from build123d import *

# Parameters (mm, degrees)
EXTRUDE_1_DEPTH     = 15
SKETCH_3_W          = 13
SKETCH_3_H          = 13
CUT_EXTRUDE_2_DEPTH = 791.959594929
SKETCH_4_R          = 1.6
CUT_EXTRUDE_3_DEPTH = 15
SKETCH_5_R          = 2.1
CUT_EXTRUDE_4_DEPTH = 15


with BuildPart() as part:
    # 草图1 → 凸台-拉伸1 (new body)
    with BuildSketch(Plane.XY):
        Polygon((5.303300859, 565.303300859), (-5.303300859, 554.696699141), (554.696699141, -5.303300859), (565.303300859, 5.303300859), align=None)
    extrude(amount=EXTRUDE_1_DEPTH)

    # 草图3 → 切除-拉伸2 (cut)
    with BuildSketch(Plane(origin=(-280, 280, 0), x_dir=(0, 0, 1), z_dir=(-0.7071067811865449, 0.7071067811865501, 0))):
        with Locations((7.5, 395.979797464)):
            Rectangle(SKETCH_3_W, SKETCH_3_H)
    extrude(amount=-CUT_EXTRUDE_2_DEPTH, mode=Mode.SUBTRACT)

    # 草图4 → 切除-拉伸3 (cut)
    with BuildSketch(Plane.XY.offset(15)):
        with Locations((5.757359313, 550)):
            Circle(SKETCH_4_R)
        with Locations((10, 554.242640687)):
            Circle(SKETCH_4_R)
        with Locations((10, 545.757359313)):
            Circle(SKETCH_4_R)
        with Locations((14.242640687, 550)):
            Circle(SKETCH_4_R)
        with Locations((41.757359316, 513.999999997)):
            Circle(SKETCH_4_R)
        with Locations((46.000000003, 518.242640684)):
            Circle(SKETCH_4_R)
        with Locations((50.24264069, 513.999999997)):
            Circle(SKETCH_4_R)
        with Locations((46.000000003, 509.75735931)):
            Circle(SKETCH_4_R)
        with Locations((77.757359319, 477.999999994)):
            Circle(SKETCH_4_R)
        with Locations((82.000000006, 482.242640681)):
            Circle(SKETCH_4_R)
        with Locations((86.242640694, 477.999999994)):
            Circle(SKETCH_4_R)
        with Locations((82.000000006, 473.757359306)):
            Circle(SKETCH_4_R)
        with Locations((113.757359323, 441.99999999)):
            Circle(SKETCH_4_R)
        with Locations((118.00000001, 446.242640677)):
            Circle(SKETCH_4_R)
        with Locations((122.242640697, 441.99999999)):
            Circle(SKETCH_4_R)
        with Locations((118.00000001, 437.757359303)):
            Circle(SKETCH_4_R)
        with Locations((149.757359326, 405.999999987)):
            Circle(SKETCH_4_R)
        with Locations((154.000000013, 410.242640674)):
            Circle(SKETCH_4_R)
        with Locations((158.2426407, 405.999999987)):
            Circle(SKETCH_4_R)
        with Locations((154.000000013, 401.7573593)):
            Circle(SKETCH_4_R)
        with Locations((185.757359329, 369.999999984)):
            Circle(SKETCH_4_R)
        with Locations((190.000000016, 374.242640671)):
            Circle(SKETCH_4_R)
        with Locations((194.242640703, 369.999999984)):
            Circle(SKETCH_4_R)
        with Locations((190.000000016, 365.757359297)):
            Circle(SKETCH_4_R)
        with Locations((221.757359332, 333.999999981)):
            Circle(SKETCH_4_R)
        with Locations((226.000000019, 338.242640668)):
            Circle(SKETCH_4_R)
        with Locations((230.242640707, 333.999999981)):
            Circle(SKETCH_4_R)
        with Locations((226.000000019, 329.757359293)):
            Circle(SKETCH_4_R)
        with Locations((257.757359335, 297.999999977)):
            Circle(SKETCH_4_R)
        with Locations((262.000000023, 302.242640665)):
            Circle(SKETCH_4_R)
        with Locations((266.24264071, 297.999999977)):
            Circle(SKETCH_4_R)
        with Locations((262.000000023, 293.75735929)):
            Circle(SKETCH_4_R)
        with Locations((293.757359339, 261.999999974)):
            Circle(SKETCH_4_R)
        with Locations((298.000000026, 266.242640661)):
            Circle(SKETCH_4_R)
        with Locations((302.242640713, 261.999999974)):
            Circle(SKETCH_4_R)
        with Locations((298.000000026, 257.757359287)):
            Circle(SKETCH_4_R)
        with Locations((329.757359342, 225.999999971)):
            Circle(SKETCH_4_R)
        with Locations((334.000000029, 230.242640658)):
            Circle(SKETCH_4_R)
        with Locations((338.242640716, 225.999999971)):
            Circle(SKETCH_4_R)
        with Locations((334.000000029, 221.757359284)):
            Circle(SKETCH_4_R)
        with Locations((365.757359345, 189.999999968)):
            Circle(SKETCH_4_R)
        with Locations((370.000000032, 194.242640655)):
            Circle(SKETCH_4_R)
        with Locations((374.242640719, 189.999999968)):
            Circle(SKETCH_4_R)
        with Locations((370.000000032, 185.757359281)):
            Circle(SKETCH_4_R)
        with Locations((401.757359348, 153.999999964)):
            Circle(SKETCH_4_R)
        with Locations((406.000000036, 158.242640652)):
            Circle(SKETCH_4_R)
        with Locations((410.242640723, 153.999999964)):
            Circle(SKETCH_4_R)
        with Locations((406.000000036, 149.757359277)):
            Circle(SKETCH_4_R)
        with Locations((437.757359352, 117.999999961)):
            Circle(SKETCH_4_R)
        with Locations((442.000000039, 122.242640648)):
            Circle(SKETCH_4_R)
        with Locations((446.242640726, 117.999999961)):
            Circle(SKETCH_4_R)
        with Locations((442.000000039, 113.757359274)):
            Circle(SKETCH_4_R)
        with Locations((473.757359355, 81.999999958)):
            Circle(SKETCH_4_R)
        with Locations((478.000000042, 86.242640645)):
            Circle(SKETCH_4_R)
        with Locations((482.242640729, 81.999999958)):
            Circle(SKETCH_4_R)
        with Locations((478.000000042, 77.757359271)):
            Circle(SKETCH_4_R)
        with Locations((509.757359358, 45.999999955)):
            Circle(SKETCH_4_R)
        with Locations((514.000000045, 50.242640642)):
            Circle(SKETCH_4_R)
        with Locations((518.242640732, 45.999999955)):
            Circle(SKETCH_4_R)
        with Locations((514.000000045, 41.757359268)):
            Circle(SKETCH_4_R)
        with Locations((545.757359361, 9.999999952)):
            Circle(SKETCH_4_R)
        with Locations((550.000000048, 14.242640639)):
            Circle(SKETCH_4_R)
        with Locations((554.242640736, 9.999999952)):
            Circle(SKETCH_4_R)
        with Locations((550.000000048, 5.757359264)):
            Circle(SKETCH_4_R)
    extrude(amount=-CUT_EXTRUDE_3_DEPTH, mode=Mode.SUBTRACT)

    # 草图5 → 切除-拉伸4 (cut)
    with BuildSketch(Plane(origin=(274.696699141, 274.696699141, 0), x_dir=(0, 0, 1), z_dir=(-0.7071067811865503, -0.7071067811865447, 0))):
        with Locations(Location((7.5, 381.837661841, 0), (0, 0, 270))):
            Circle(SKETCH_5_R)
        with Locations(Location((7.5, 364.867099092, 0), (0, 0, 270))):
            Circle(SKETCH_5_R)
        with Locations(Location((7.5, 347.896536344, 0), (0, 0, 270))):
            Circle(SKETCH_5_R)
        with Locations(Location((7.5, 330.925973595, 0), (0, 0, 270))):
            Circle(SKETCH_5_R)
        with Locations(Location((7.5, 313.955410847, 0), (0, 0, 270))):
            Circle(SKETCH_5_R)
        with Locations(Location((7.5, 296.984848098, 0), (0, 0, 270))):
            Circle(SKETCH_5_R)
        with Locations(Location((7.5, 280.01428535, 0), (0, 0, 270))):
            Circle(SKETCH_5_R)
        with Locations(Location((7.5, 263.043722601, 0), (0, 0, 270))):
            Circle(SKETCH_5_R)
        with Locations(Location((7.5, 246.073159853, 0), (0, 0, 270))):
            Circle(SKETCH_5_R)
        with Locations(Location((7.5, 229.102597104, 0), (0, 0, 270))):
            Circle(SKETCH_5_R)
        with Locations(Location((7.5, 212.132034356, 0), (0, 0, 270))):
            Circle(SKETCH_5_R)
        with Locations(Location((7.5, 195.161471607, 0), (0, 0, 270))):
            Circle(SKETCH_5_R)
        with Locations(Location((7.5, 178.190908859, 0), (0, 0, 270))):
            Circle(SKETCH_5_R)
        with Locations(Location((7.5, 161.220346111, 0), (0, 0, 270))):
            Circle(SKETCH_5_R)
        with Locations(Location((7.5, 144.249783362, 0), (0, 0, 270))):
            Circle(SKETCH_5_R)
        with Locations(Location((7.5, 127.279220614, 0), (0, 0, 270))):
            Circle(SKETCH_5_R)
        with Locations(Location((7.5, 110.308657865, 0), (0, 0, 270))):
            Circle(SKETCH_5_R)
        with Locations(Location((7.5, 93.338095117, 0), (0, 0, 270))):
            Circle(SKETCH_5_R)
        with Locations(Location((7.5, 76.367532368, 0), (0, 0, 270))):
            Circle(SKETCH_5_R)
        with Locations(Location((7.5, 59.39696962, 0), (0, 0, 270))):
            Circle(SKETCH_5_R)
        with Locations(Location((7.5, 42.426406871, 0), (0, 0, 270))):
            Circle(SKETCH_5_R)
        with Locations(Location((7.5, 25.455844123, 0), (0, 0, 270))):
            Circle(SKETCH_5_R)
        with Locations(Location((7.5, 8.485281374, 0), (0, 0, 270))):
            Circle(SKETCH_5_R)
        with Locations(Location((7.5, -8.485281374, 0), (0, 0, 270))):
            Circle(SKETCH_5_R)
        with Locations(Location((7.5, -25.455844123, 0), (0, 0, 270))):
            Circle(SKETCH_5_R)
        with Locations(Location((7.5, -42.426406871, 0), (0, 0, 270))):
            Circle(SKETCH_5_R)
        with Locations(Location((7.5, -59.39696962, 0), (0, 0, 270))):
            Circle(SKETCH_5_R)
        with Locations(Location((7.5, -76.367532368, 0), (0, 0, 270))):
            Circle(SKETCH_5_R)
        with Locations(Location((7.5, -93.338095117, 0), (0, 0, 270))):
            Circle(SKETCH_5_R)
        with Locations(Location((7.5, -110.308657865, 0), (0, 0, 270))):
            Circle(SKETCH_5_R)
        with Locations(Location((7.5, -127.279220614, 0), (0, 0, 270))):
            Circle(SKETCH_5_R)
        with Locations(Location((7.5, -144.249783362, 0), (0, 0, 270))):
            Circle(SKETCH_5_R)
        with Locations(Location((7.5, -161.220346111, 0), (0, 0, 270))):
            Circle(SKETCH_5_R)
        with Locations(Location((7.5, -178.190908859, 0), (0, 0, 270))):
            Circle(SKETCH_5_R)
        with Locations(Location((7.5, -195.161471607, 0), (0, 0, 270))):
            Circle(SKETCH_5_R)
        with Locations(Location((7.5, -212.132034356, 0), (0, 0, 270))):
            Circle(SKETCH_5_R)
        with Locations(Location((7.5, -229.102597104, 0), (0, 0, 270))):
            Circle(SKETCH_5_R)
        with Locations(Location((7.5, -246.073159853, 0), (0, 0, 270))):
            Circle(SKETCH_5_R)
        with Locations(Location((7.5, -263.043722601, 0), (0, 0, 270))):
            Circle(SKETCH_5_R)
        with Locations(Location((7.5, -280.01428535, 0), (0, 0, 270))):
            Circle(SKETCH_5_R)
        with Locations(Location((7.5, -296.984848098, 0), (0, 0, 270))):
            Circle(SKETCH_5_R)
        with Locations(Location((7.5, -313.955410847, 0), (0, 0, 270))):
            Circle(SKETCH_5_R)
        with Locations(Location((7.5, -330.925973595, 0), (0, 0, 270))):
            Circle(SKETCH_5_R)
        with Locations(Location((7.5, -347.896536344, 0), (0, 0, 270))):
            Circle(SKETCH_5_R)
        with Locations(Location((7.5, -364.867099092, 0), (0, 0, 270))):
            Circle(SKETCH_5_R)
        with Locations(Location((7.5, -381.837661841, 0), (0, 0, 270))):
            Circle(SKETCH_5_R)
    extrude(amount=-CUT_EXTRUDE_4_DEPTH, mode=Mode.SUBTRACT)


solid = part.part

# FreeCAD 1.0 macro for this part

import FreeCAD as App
import Part
import Sketcher
Q = App.Units.Quantity

doc = App.newDocument("Part")
params = doc.addObject("Spreadsheet::Sheet", "Params")
for row, (alias, value) in enumerate([
    ("sketch1_length", "15 mm"),
    ("pad1_length", "15 mm"),
    ("sketch2_width", "13 mm"),
    ("pocket1_length", "791.959595 mm"),
    ("sketch3_diameter", "3.2 mm"),
    ("pocket2_length", "15 mm"),
    ("sketch4_diameter", "4.2 mm"),
    ("pocket3_length", "15 mm"),
], start=1):
    params.set(f"A{row}", alias)
    params.set(f"B{row}", "=" + value)
    params.setAlias(f"B{row}", alias)

body = doc.addObject("PartDesign::Body", "Body")

sketch1 = body.newObject("Sketcher::SketchObject", "Sketch")
sketch1.AttachmentSupport = (doc.getObject("XY_Plane"), [""])
sketch1.MapMode = "FlatFace"
sketch1.addGeometry(Part.LineSegment(App.Vector(5, 565, 0), App.Vector(-5, 555, 0)), False)
sketch1.addGeometry(Part.LineSegment(App.Vector(-5, 555, 0), App.Vector(555, -5, 0)), False)
sketch1.addGeometry(Part.LineSegment(App.Vector(555, -5, 0), App.Vector(565, 5, 0)), False)
sketch1.addGeometry(Part.LineSegment(App.Vector(565, 5, 0), App.Vector(5, 565, 0)), False)
sketch1.addConstraint(Sketcher.Constraint("Coincident", 0, 2, 1, 1))
sketch1.addConstraint(Sketcher.Constraint("Coincident", 1, 2, 2, 1))
sketch1.addConstraint(Sketcher.Constraint("Coincident", 2, 2, 3, 1))
sketch1.addConstraint(Sketcher.Constraint("Coincident", 3, 2, 0, 1))
sketch1.addConstraint(Sketcher.Constraint("Perpendicular", 0, 1))
sketch1.addConstraint(Sketcher.Constraint("Perpendicular", 1, 2))
sketch1.addConstraint(Sketcher.Constraint("Perpendicular", 2, 3))
sketch1.addConstraint(Sketcher.Constraint("Angle", 0, Q("-135 deg")))
sketch1.addConstraint(Sketcher.Constraint("Distance", 0, Q("15 mm")))
sketch1.addConstraint(Sketcher.Constraint("DistanceX", 0, 2, 1, 2, Q("560 mm")))
sketch1.addConstraint(Sketcher.Constraint("DistanceX", 0, 2, -1, 1, Q("5.303301 mm")))
sketch1.addConstraint(Sketcher.Constraint("DistanceY", -1, 1, 0, 2, Q("554.696699 mm")))
sketch1.setExpression("Constraints[8]", "Params.sketch1_length")
pad1 = body.newObject("PartDesign::Pad", "Pad")
pad1.Profile = sketch1
pad1.setExpression("Length", "Params.pad1_length")

sketch2 = body.newObject("Sketcher::SketchObject", "Sketch001")
sketch2.Placement = App.Placement(App.Vector(-280, 280, 0), App.Rotation(App.Vector(0, 0, 1), App.Vector(0.707106781, 0.707106781, 0), App.Vector(-0.707106781, 0.707106781, 0), "ZXY"))
sketch2.addGeometry(Part.LineSegment(App.Vector(1, 402, 0), App.Vector(1, 389, 0)), False)
sketch2.addGeometry(Part.LineSegment(App.Vector(1, 389, 0), App.Vector(14, 389, 0)), False)
sketch2.addGeometry(Part.LineSegment(App.Vector(14, 389, 0), App.Vector(14, 402, 0)), False)
sketch2.addGeometry(Part.LineSegment(App.Vector(14, 402, 0), App.Vector(1, 402, 0)), False)
sketch2.addConstraint(Sketcher.Constraint("Coincident", 0, 2, 1, 1))
sketch2.addConstraint(Sketcher.Constraint("Coincident", 1, 2, 2, 1))
sketch2.addConstraint(Sketcher.Constraint("Coincident", 2, 2, 3, 1))
sketch2.addConstraint(Sketcher.Constraint("Coincident", 3, 2, 0, 1))
sketch2.addConstraint(Sketcher.Constraint("Vertical", 0))
sketch2.addConstraint(Sketcher.Constraint("Horizontal", 1))
sketch2.addConstraint(Sketcher.Constraint("Vertical", 2))
sketch2.addConstraint(Sketcher.Constraint("Horizontal", 3))
sketch2.addConstraint(Sketcher.Constraint("Equal", 3, 0))
sketch2.addConstraint(Sketcher.Constraint("DistanceX", 1, 1, 1, 2, Q("13 mm")))
sketch2.addConstraint(Sketcher.Constraint("DistanceX", -1, 1, 0, 2, Q("1 mm")))
sketch2.addConstraint(Sketcher.Constraint("DistanceY", -1, 1, 0, 2, Q("389.479797 mm")))
sketch2.setExpression("Constraints[9]", "Params.sketch2_width")
pocket1 = body.newObject("PartDesign::Pocket", "Pocket")
pocket1.Profile = sketch2
pocket1.setExpression("Length", "Params.pocket1_length")

sketch3 = body.newObject("Sketcher::SketchObject", "Sketch002")
sketch3.AttachmentSupport = (doc.getObject("XY_Plane"), [""])
sketch3.MapMode = "FlatFace"
sketch3.AttachmentOffset = App.Placement(App.Vector(0, 0, 15), App.Rotation())
sketch3.addGeometry(Part.Circle(App.Vector(5.8, 550, 0), App.Vector(0, 0, 1), 1.6), False)
sketch3.addGeometry(Part.Circle(App.Vector(10, 554.2, 0), App.Vector(0, 0, 1), 1.6), False)
sketch3.addGeometry(Part.Circle(App.Vector(10, 545.8, 0), App.Vector(0, 0, 1), 1.6), False)
sketch3.addGeometry(Part.Circle(App.Vector(14.2, 550, 0), App.Vector(0, 0, 1), 1.6), False)
sketch3.addGeometry(Part.Circle(App.Vector(41.8, 514, 0), App.Vector(0, 0, 1), 1.6), False)
sketch3.addGeometry(Part.Circle(App.Vector(46, 518.2, 0), App.Vector(0, 0, 1), 1.6), False)
sketch3.addGeometry(Part.Circle(App.Vector(50.2, 514, 0), App.Vector(0, 0, 1), 1.6), False)
sketch3.addGeometry(Part.Circle(App.Vector(46, 509.8, 0), App.Vector(0, 0, 1), 1.6), False)
sketch3.addGeometry(Part.Circle(App.Vector(77.8, 478, 0), App.Vector(0, 0, 1), 1.6), False)
sketch3.addGeometry(Part.Circle(App.Vector(82, 482.2, 0), App.Vector(0, 0, 1), 1.6), False)
sketch3.addGeometry(Part.Circle(App.Vector(86.2, 478, 0), App.Vector(0, 0, 1), 1.6), False)
sketch3.addGeometry(Part.Circle(App.Vector(82, 473.8, 0), App.Vector(0, 0, 1), 1.6), False)
sketch3.addGeometry(Part.Circle(App.Vector(113.8, 442, 0), App.Vector(0, 0, 1), 1.6), False)
sketch3.addGeometry(Part.Circle(App.Vector(118, 446.2, 0), App.Vector(0, 0, 1), 1.6), False)
sketch3.addGeometry(Part.Circle(App.Vector(122.2, 442, 0), App.Vector(0, 0, 1), 1.6), False)
sketch3.addGeometry(Part.Circle(App.Vector(118, 437.8, 0), App.Vector(0, 0, 1), 1.6), False)
sketch3.addGeometry(Part.Circle(App.Vector(149.8, 406, 0), App.Vector(0, 0, 1), 1.6), False)
sketch3.addGeometry(Part.Circle(App.Vector(154, 410.2, 0), App.Vector(0, 0, 1), 1.6), False)
sketch3.addGeometry(Part.Circle(App.Vector(158.2, 406, 0), App.Vector(0, 0, 1), 1.6), False)
sketch3.addGeometry(Part.Circle(App.Vector(154, 401.8, 0), App.Vector(0, 0, 1), 1.6), False)
sketch3.addGeometry(Part.Circle(App.Vector(185.8, 370, 0), App.Vector(0, 0, 1), 1.6), False)
sketch3.addGeometry(Part.Circle(App.Vector(190, 374.2, 0), App.Vector(0, 0, 1), 1.6), False)
sketch3.addGeometry(Part.Circle(App.Vector(194.2, 370, 0), App.Vector(0, 0, 1), 1.6), False)
sketch3.addGeometry(Part.Circle(App.Vector(190, 365.8, 0), App.Vector(0, 0, 1), 1.6), False)
sketch3.addGeometry(Part.Circle(App.Vector(221.8, 334, 0), App.Vector(0, 0, 1), 1.6), False)
sketch3.addGeometry(Part.Circle(App.Vector(226, 338.2, 0), App.Vector(0, 0, 1), 1.6), False)
sketch3.addGeometry(Part.Circle(App.Vector(230.2, 334, 0), App.Vector(0, 0, 1), 1.6), False)
sketch3.addGeometry(Part.Circle(App.Vector(226, 329.8, 0), App.Vector(0, 0, 1), 1.6), False)
sketch3.addGeometry(Part.Circle(App.Vector(257.8, 298, 0), App.Vector(0, 0, 1), 1.6), False)
sketch3.addGeometry(Part.Circle(App.Vector(262, 302.2, 0), App.Vector(0, 0, 1), 1.6), False)
sketch3.addGeometry(Part.Circle(App.Vector(266.2, 298, 0), App.Vector(0, 0, 1), 1.6), False)
sketch3.addGeometry(Part.Circle(App.Vector(262, 293.8, 0), App.Vector(0, 0, 1), 1.6), False)
sketch3.addGeometry(Part.Circle(App.Vector(293.8, 262, 0), App.Vector(0, 0, 1), 1.6), False)
sketch3.addGeometry(Part.Circle(App.Vector(298, 266.2, 0), App.Vector(0, 0, 1), 1.6), False)
sketch3.addGeometry(Part.Circle(App.Vector(302.2, 262, 0), App.Vector(0, 0, 1), 1.6), False)
sketch3.addGeometry(Part.Circle(App.Vector(298, 257.8, 0), App.Vector(0, 0, 1), 1.6), False)
sketch3.addGeometry(Part.Circle(App.Vector(329.8, 226, 0), App.Vector(0, 0, 1), 1.6), False)
sketch3.addGeometry(Part.Circle(App.Vector(334, 230.2, 0), App.Vector(0, 0, 1), 1.6), False)
sketch3.addGeometry(Part.Circle(App.Vector(338.2, 226, 0), App.Vector(0, 0, 1), 1.6), False)
sketch3.addGeometry(Part.Circle(App.Vector(334, 221.8, 0), App.Vector(0, 0, 1), 1.6), False)
sketch3.addGeometry(Part.Circle(App.Vector(365.8, 190, 0), App.Vector(0, 0, 1), 1.6), False)
sketch3.addGeometry(Part.Circle(App.Vector(370, 194.2, 0), App.Vector(0, 0, 1), 1.6), False)
sketch3.addGeometry(Part.Circle(App.Vector(374.2, 190, 0), App.Vector(0, 0, 1), 1.6), False)
sketch3.addGeometry(Part.Circle(App.Vector(370, 185.8, 0), App.Vector(0, 0, 1), 1.6), False)
sketch3.addGeometry(Part.Circle(App.Vector(401.8, 154, 0), App.Vector(0, 0, 1), 1.6), False)
sketch3.addGeometry(Part.Circle(App.Vector(406, 158.2, 0), App.Vector(0, 0, 1), 1.6), False)
sketch3.addGeometry(Part.Circle(App.Vector(410.2, 154, 0), App.Vector(0, 0, 1), 1.6), False)
sketch3.addGeometry(Part.Circle(App.Vector(406, 149.8, 0), App.Vector(0, 0, 1), 1.6), False)
sketch3.addGeometry(Part.Circle(App.Vector(437.8, 118, 0), App.Vector(0, 0, 1), 1.6), False)
sketch3.addGeometry(Part.Circle(App.Vector(442, 122.2, 0), App.Vector(0, 0, 1), 1.6), False)
sketch3.addGeometry(Part.Circle(App.Vector(446.2, 118, 0), App.Vector(0, 0, 1), 1.6), False)
sketch3.addGeometry(Part.Circle(App.Vector(442, 113.8, 0), App.Vector(0, 0, 1), 1.6), False)
sketch3.addGeometry(Part.Circle(App.Vector(473.8, 82, 0), App.Vector(0, 0, 1), 1.6), False)
sketch3.addGeometry(Part.Circle(App.Vector(478, 86.2, 0), App.Vector(0, 0, 1), 1.6), False)
sketch3.addGeometry(Part.Circle(App.Vector(482.2, 82, 0), App.Vector(0, 0, 1), 1.6), False)
sketch3.addGeometry(Part.Circle(App.Vector(478, 77.8, 0), App.Vector(0, 0, 1), 1.6), False)
sketch3.addGeometry(Part.Circle(App.Vector(509.8, 46, 0), App.Vector(0, 0, 1), 1.6), False)
sketch3.addGeometry(Part.Circle(App.Vector(514, 50.2, 0), App.Vector(0, 0, 1), 1.6), False)
sketch3.addGeometry(Part.Circle(App.Vector(518.2, 46, 0), App.Vector(0, 0, 1), 1.6), False)
sketch3.addGeometry(Part.Circle(App.Vector(514, 41.8, 0), App.Vector(0, 0, 1), 1.6), False)
sketch3.addGeometry(Part.Circle(App.Vector(545.8, 10, 0), App.Vector(0, 0, 1), 1.6), False)
sketch3.addGeometry(Part.Circle(App.Vector(550, 14.2, 0), App.Vector(0, 0, 1), 1.6), False)
sketch3.addGeometry(Part.Circle(App.Vector(554.2, 10, 0), App.Vector(0, 0, 1), 1.6), False)
sketch3.addGeometry(Part.Circle(App.Vector(550, 5.8, 0), App.Vector(0, 0, 1), 1.6), False)
sketch3.addConstraint(Sketcher.Constraint("Equal", 0, 1))
sketch3.addConstraint(Sketcher.Constraint("Equal", 1, 2))
sketch3.addConstraint(Sketcher.Constraint("Equal", 2, 3))
sketch3.addConstraint(Sketcher.Constraint("Equal", 3, 4))
sketch3.addConstraint(Sketcher.Constraint("Equal", 4, 5))
sketch3.addConstraint(Sketcher.Constraint("Equal", 5, 6))
sketch3.addConstraint(Sketcher.Constraint("Equal", 6, 7))
sketch3.addConstraint(Sketcher.Constraint("Equal", 7, 8))
sketch3.addConstraint(Sketcher.Constraint("Equal", 8, 9))
sketch3.addConstraint(Sketcher.Constraint("Equal", 9, 10))
sketch3.addConstraint(Sketcher.Constraint("Equal", 10, 11))
sketch3.addConstraint(Sketcher.Constraint("Equal", 11, 12))
sketch3.addConstraint(Sketcher.Constraint("Equal", 12, 13))
sketch3.addConstraint(Sketcher.Constraint("Equal", 13, 14))
sketch3.addConstraint(Sketcher.Constraint("Equal", 14, 15))
sketch3.addConstraint(Sketcher.Constraint("Equal", 15, 16))
sketch3.addConstraint(Sketcher.Constraint("Equal", 16, 17))
sketch3.addConstraint(Sketcher.Constraint("Equal", 17, 18))
sketch3.addConstraint(Sketcher.Constraint("Equal", 18, 19))
sketch3.addConstraint(Sketcher.Constraint("Equal", 19, 20))
sketch3.addConstraint(Sketcher.Constraint("Equal", 20, 21))
sketch3.addConstraint(Sketcher.Constraint("Equal", 21, 22))
sketch3.addConstraint(Sketcher.Constraint("Equal", 22, 23))
sketch3.addConstraint(Sketcher.Constraint("Equal", 23, 24))
sketch3.addConstraint(Sketcher.Constraint("Equal", 24, 25))
sketch3.addConstraint(Sketcher.Constraint("Equal", 25, 26))
sketch3.addConstraint(Sketcher.Constraint("Equal", 26, 27))
sketch3.addConstraint(Sketcher.Constraint("Equal", 27, 28))
sketch3.addConstraint(Sketcher.Constraint("Equal", 28, 29))
sketch3.addConstraint(Sketcher.Constraint("Equal", 29, 30))
sketch3.addConstraint(Sketcher.Constraint("Equal", 30, 31))
sketch3.addConstraint(Sketcher.Constraint("Equal", 31, 32))
sketch3.addConstraint(Sketcher.Constraint("Equal", 32, 33))
sketch3.addConstraint(Sketcher.Constraint("Equal", 33, 34))
sketch3.addConstraint(Sketcher.Constraint("Equal", 34, 35))
sketch3.addConstraint(Sketcher.Constraint("Equal", 35, 36))
sketch3.addConstraint(Sketcher.Constraint("Equal", 36, 37))
sketch3.addConstraint(Sketcher.Constraint("Equal", 37, 38))
sketch3.addConstraint(Sketcher.Constraint("Equal", 38, 39))
sketch3.addConstraint(Sketcher.Constraint("Equal", 39, 40))
sketch3.addConstraint(Sketcher.Constraint("Equal", 40, 41))
sketch3.addConstraint(Sketcher.Constraint("Equal", 41, 42))
sketch3.addConstraint(Sketcher.Constraint("Equal", 42, 43))
sketch3.addConstraint(Sketcher.Constraint("Equal", 43, 44))
sketch3.addConstraint(Sketcher.Constraint("Equal", 44, 45))
sketch3.addConstraint(Sketcher.Constraint("Equal", 45, 46))
sketch3.addConstraint(Sketcher.Constraint("Equal", 46, 47))
sketch3.addConstraint(Sketcher.Constraint("Equal", 47, 48))
sketch3.addConstraint(Sketcher.Constraint("Equal", 48, 49))
sketch3.addConstraint(Sketcher.Constraint("Equal", 49, 50))
sketch3.addConstraint(Sketcher.Constraint("Equal", 50, 51))
sketch3.addConstraint(Sketcher.Constraint("Equal", 51, 52))
sketch3.addConstraint(Sketcher.Constraint("Equal", 52, 53))
sketch3.addConstraint(Sketcher.Constraint("Equal", 53, 54))
sketch3.addConstraint(Sketcher.Constraint("Equal", 54, 55))
sketch3.addConstraint(Sketcher.Constraint("Equal", 55, 56))
sketch3.addConstraint(Sketcher.Constraint("Equal", 56, 57))
sketch3.addConstraint(Sketcher.Constraint("Equal", 57, 58))
sketch3.addConstraint(Sketcher.Constraint("Equal", 58, 59))
sketch3.addConstraint(Sketcher.Constraint("Equal", 59, 60))
sketch3.addConstraint(Sketcher.Constraint("Equal", 60, 61))
sketch3.addConstraint(Sketcher.Constraint("Equal", 61, 62))
sketch3.addConstraint(Sketcher.Constraint("Equal", 62, 63))
sketch3.addConstraint(Sketcher.Constraint("Horizontal", 0, 3, 3, 3))
sketch3.addConstraint(Sketcher.Constraint("Horizontal", 4, 3, 6, 3))
sketch3.addConstraint(Sketcher.Constraint("Horizontal", 8, 3, 10, 3))
sketch3.addConstraint(Sketcher.Constraint("Horizontal", 12, 3, 14, 3))
sketch3.addConstraint(Sketcher.Constraint("Horizontal", 16, 3, 18, 3))
sketch3.addConstraint(Sketcher.Constraint("Horizontal", 20, 3, 22, 3))
sketch3.addConstraint(Sketcher.Constraint("Horizontal", 24, 3, 26, 3))
sketch3.addConstraint(Sketcher.Constraint("Horizontal", 28, 3, 30, 3))
sketch3.addConstraint(Sketcher.Constraint("Horizontal", 32, 3, 34, 3))
sketch3.addConstraint(Sketcher.Constraint("Horizontal", 36, 3, 38, 3))
sketch3.addConstraint(Sketcher.Constraint("Horizontal", 40, 3, 42, 3))
sketch3.addConstraint(Sketcher.Constraint("Horizontal", 44, 3, 46, 3))
sketch3.addConstraint(Sketcher.Constraint("Horizontal", 48, 3, 50, 3))
sketch3.addConstraint(Sketcher.Constraint("Horizontal", 52, 3, 54, 3))
sketch3.addConstraint(Sketcher.Constraint("Horizontal", 56, 3, 58, 3))
sketch3.addConstraint(Sketcher.Constraint("Horizontal", 60, 3, 62, 3))
sketch3.addConstraint(Sketcher.Constraint("Vertical", 1, 3, 2, 3))
sketch3.addConstraint(Sketcher.Constraint("Vertical", 5, 3, 7, 3))
sketch3.addConstraint(Sketcher.Constraint("Vertical", 9, 3, 11, 3))
sketch3.addConstraint(Sketcher.Constraint("Vertical", 13, 3, 15, 3))
sketch3.addConstraint(Sketcher.Constraint("Vertical", 17, 3, 19, 3))
sketch3.addConstraint(Sketcher.Constraint("Vertical", 21, 3, 23, 3))
sketch3.addConstraint(Sketcher.Constraint("Vertical", 25, 3, 27, 3))
sketch3.addConstraint(Sketcher.Constraint("Vertical", 29, 3, 31, 3))
sketch3.addConstraint(Sketcher.Constraint("Vertical", 33, 3, 35, 3))
sketch3.addConstraint(Sketcher.Constraint("Vertical", 37, 3, 39, 3))
sketch3.addConstraint(Sketcher.Constraint("Vertical", 41, 3, 43, 3))
sketch3.addConstraint(Sketcher.Constraint("Vertical", 45, 3, 47, 3))
sketch3.addConstraint(Sketcher.Constraint("Vertical", 49, 3, 51, 3))
sketch3.addConstraint(Sketcher.Constraint("Vertical", 53, 3, 55, 3))
sketch3.addConstraint(Sketcher.Constraint("Vertical", 57, 3, 59, 3))
sketch3.addConstraint(Sketcher.Constraint("Vertical", 61, 3, 63, 3))
sketch3.addConstraint(Sketcher.Constraint("Diameter", 0, Q("3.2 mm")))
sketch3.addConstraint(Sketcher.Constraint("DistanceY", -1, 1, 0, 3, Q("550 mm")))
sketch3.addConstraint(Sketcher.Constraint("DistanceX", -1, 1, 1, 3, Q("10 mm")))
sketch3.addConstraint(Sketcher.Constraint("DistanceY", -1, 1, 4, 3, Q("514 mm")))
sketch3.addConstraint(Sketcher.Constraint("DistanceX", -1, 1, 5, 3, Q("46 mm")))
sketch3.addConstraint(Sketcher.Constraint("DistanceY", -1, 1, 8, 3, Q("478 mm")))
sketch3.addConstraint(Sketcher.Constraint("DistanceX", -1, 1, 9, 3, Q("82 mm")))
sketch3.addConstraint(Sketcher.Constraint("DistanceY", -1, 1, 12, 3, Q("442 mm")))
sketch3.addConstraint(Sketcher.Constraint("DistanceX", -1, 1, 13, 3, Q("118 mm")))
sketch3.addConstraint(Sketcher.Constraint("DistanceY", -1, 1, 16, 3, Q("406 mm")))
sketch3.addConstraint(Sketcher.Constraint("DistanceX", -1, 1, 17, 3, Q("154 mm")))
sketch3.addConstraint(Sketcher.Constraint("DistanceY", -1, 1, 20, 3, Q("370 mm")))
sketch3.addConstraint(Sketcher.Constraint("DistanceX", -1, 1, 21, 3, Q("190 mm")))
sketch3.addConstraint(Sketcher.Constraint("DistanceY", -1, 1, 24, 3, Q("334 mm")))
sketch3.addConstraint(Sketcher.Constraint("DistanceX", -1, 1, 25, 3, Q("226 mm")))
sketch3.addConstraint(Sketcher.Constraint("DistanceY", -1, 1, 28, 3, Q("298 mm")))
sketch3.addConstraint(Sketcher.Constraint("DistanceX", -1, 1, 29, 3, Q("262 mm")))
sketch3.addConstraint(Sketcher.Constraint("DistanceY", -1, 1, 32, 3, Q("262 mm")))
sketch3.addConstraint(Sketcher.Constraint("DistanceX", -1, 1, 33, 3, Q("298 mm")))
sketch3.addConstraint(Sketcher.Constraint("DistanceY", -1, 1, 36, 3, Q("226 mm")))
sketch3.addConstraint(Sketcher.Constraint("DistanceX", -1, 1, 37, 3, Q("334 mm")))
sketch3.addConstraint(Sketcher.Constraint("DistanceY", -1, 1, 40, 3, Q("190 mm")))
sketch3.addConstraint(Sketcher.Constraint("DistanceX", -1, 1, 41, 3, Q("370 mm")))
sketch3.addConstraint(Sketcher.Constraint("DistanceY", -1, 1, 44, 3, Q("154 mm")))
sketch3.addConstraint(Sketcher.Constraint("DistanceX", -1, 1, 45, 3, Q("406 mm")))
sketch3.addConstraint(Sketcher.Constraint("DistanceY", -1, 1, 48, 3, Q("118 mm")))
sketch3.addConstraint(Sketcher.Constraint("DistanceX", -1, 1, 49, 3, Q("442 mm")))
sketch3.addConstraint(Sketcher.Constraint("DistanceY", -1, 1, 52, 3, Q("82 mm")))
sketch3.addConstraint(Sketcher.Constraint("DistanceX", -1, 1, 53, 3, Q("478 mm")))
sketch3.addConstraint(Sketcher.Constraint("DistanceY", -1, 1, 56, 3, Q("46 mm")))
sketch3.addConstraint(Sketcher.Constraint("DistanceX", -1, 1, 57, 3, Q("514 mm")))
sketch3.addConstraint(Sketcher.Constraint("DistanceY", -1, 1, 60, 3, Q("10 mm")))
sketch3.addConstraint(Sketcher.Constraint("DistanceX", -1, 1, 61, 3, Q("550 mm")))
sketch3.addConstraint(Sketcher.Constraint("DistanceX", -1, 1, 0, 3, Q("5.757359 mm")))
sketch3.addConstraint(Sketcher.Constraint("DistanceY", -1, 1, 1, 3, Q("554.242641 mm")))
sketch3.addConstraint(Sketcher.Constraint("DistanceY", -1, 1, 2, 3, Q("545.757359 mm")))
sketch3.addConstraint(Sketcher.Constraint("DistanceX", -1, 1, 3, 3, Q("14.242641 mm")))
sketch3.addConstraint(Sketcher.Constraint("DistanceX", -1, 1, 4, 3, Q("41.757359 mm")))
sketch3.addConstraint(Sketcher.Constraint("DistanceY", -1, 1, 5, 3, Q("518.242641 mm")))
sketch3.addConstraint(Sketcher.Constraint("DistanceX", -1, 1, 6, 3, Q("50.242641 mm")))
sketch3.addConstraint(Sketcher.Constraint("DistanceY", -1, 1, 7, 3, Q("509.757359 mm")))
sketch3.addConstraint(Sketcher.Constraint("DistanceX", -1, 1, 8, 3, Q("77.757359 mm")))
sketch3.addConstraint(Sketcher.Constraint("DistanceY", -1, 1, 9, 3, Q("482.242641 mm")))
sketch3.addConstraint(Sketcher.Constraint("DistanceX", -1, 1, 10, 3, Q("86.242641 mm")))
sketch3.addConstraint(Sketcher.Constraint("DistanceY", -1, 1, 11, 3, Q("473.757359 mm")))
sketch3.addConstraint(Sketcher.Constraint("DistanceX", -1, 1, 12, 3, Q("113.757359 mm")))
sketch3.addConstraint(Sketcher.Constraint("DistanceY", -1, 1, 13, 3, Q("446.242641 mm")))
sketch3.addConstraint(Sketcher.Constraint("DistanceX", -1, 1, 14, 3, Q("122.242641 mm")))
sketch3.addConstraint(Sketcher.Constraint("DistanceY", -1, 1, 15, 3, Q("437.757359 mm")))
sketch3.addConstraint(Sketcher.Constraint("DistanceX", -1, 1, 16, 3, Q("149.757359 mm")))
sketch3.addConstraint(Sketcher.Constraint("DistanceY", -1, 1, 17, 3, Q("410.242641 mm")))
sketch3.addConstraint(Sketcher.Constraint("DistanceX", -1, 1, 18, 3, Q("158.242641 mm")))
sketch3.addConstraint(Sketcher.Constraint("DistanceY", -1, 1, 19, 3, Q("401.757359 mm")))
sketch3.addConstraint(Sketcher.Constraint("DistanceX", -1, 1, 20, 3, Q("185.757359 mm")))
sketch3.addConstraint(Sketcher.Constraint("DistanceY", -1, 1, 21, 3, Q("374.242641 mm")))
sketch3.addConstraint(Sketcher.Constraint("DistanceX", -1, 1, 22, 3, Q("194.242641 mm")))
sketch3.addConstraint(Sketcher.Constraint("DistanceY", -1, 1, 23, 3, Q("365.757359 mm")))
sketch3.addConstraint(Sketcher.Constraint("DistanceX", -1, 1, 24, 3, Q("221.757359 mm")))
sketch3.addConstraint(Sketcher.Constraint("DistanceY", -1, 1, 25, 3, Q("338.242641 mm")))
sketch3.addConstraint(Sketcher.Constraint("DistanceX", -1, 1, 26, 3, Q("230.242641 mm")))
sketch3.addConstraint(Sketcher.Constraint("DistanceY", -1, 1, 27, 3, Q("329.757359 mm")))
sketch3.addConstraint(Sketcher.Constraint("DistanceX", -1, 1, 28, 3, Q("257.757359 mm")))
sketch3.addConstraint(Sketcher.Constraint("DistanceY", -1, 1, 29, 3, Q("302.242641 mm")))
sketch3.addConstraint(Sketcher.Constraint("DistanceX", -1, 1, 30, 3, Q("266.242641 mm")))
sketch3.addConstraint(Sketcher.Constraint("DistanceY", -1, 1, 31, 3, Q("293.757359 mm")))
sketch3.addConstraint(Sketcher.Constraint("DistanceX", -1, 1, 32, 3, Q("293.757359 mm")))
sketch3.addConstraint(Sketcher.Constraint("DistanceY", -1, 1, 33, 3, Q("266.242641 mm")))
sketch3.addConstraint(Sketcher.Constraint("DistanceX", -1, 1, 34, 3, Q("302.242641 mm")))
sketch3.addConstraint(Sketcher.Constraint("DistanceY", -1, 1, 35, 3, Q("257.757359 mm")))
sketch3.addConstraint(Sketcher.Constraint("DistanceX", -1, 1, 36, 3, Q("329.757359 mm")))
sketch3.addConstraint(Sketcher.Constraint("DistanceY", -1, 1, 37, 3, Q("230.242641 mm")))
sketch3.addConstraint(Sketcher.Constraint("DistanceX", -1, 1, 38, 3, Q("338.242641 mm")))
sketch3.addConstraint(Sketcher.Constraint("DistanceY", -1, 1, 39, 3, Q("221.757359 mm")))
sketch3.addConstraint(Sketcher.Constraint("DistanceX", -1, 1, 40, 3, Q("365.757359 mm")))
sketch3.addConstraint(Sketcher.Constraint("DistanceY", -1, 1, 41, 3, Q("194.242641 mm")))
sketch3.addConstraint(Sketcher.Constraint("DistanceX", -1, 1, 42, 3, Q("374.242641 mm")))
sketch3.addConstraint(Sketcher.Constraint("DistanceY", -1, 1, 43, 3, Q("185.757359 mm")))
sketch3.addConstraint(Sketcher.Constraint("DistanceX", -1, 1, 44, 3, Q("401.757359 mm")))
sketch3.addConstraint(Sketcher.Constraint("DistanceY", -1, 1, 45, 3, Q("158.242641 mm")))
sketch3.addConstraint(Sketcher.Constraint("DistanceX", -1, 1, 46, 3, Q("410.242641 mm")))
sketch3.addConstraint(Sketcher.Constraint("DistanceY", -1, 1, 47, 3, Q("149.757359 mm")))
sketch3.addConstraint(Sketcher.Constraint("DistanceX", -1, 1, 48, 3, Q("437.757359 mm")))
sketch3.addConstraint(Sketcher.Constraint("DistanceY", -1, 1, 49, 3, Q("122.242641 mm")))
sketch3.addConstraint(Sketcher.Constraint("DistanceX", -1, 1, 50, 3, Q("446.242641 mm")))
sketch3.addConstraint(Sketcher.Constraint("DistanceY", -1, 1, 51, 3, Q("113.757359 mm")))
sketch3.addConstraint(Sketcher.Constraint("DistanceX", -1, 1, 52, 3, Q("473.757359 mm")))
sketch3.addConstraint(Sketcher.Constraint("DistanceY", -1, 1, 53, 3, Q("86.242641 mm")))
sketch3.addConstraint(Sketcher.Constraint("DistanceX", -1, 1, 54, 3, Q("482.242641 mm")))
sketch3.addConstraint(Sketcher.Constraint("DistanceY", -1, 1, 55, 3, Q("77.757359 mm")))
sketch3.addConstraint(Sketcher.Constraint("DistanceX", -1, 1, 56, 3, Q("509.757359 mm")))
sketch3.addConstraint(Sketcher.Constraint("DistanceY", -1, 1, 57, 3, Q("50.242641 mm")))
sketch3.addConstraint(Sketcher.Constraint("DistanceX", -1, 1, 58, 3, Q("518.242641 mm")))
sketch3.addConstraint(Sketcher.Constraint("DistanceY", -1, 1, 59, 3, Q("41.757359 mm")))
sketch3.addConstraint(Sketcher.Constraint("DistanceX", -1, 1, 60, 3, Q("545.757359 mm")))
sketch3.addConstraint(Sketcher.Constraint("DistanceY", -1, 1, 61, 3, Q("14.242641 mm")))
sketch3.addConstraint(Sketcher.Constraint("DistanceX", -1, 1, 62, 3, Q("554.242641 mm")))
sketch3.addConstraint(Sketcher.Constraint("DistanceY", -1, 1, 63, 3, Q("5.757359 mm")))
sketch3.setExpression("Constraints[95]", "Params.sketch3_diameter")
pocket2 = body.newObject("PartDesign::Pocket", "Pocket001")
pocket2.Profile = sketch3
pocket2.setExpression("Length", "Params.pocket2_length")

sketch4 = body.newObject("Sketcher::SketchObject", "Sketch003")
sketch4.Placement = App.Placement(App.Vector(274.696699, 274.696699, 0), App.Rotation(App.Vector(0, 0, 1), App.Vector(-0.707106781, 0.707106781, 0), App.Vector(-0.707106781, -0.707106781, 0), "ZXY"))
sketch4.addGeometry(Part.Circle(App.Vector(7.5, 381.8, 0), App.Vector(0, 0, 1), 2.1), False)
sketch4.addGeometry(Part.Circle(App.Vector(7.5, 364.9, 0), App.Vector(0, 0, 1), 2.1), False)
sketch4.addGeometry(Part.Circle(App.Vector(7.5, 347.9, 0), App.Vector(0, 0, 1), 2.1), False)
sketch4.addGeometry(Part.Circle(App.Vector(7.5, 330.9, 0), App.Vector(0, 0, 1), 2.1), False)
sketch4.addGeometry(Part.Circle(App.Vector(7.5, 314, 0), App.Vector(0, 0, 1), 2.1), False)
sketch4.addGeometry(Part.Circle(App.Vector(7.5, 297, 0), App.Vector(0, 0, 1), 2.1), False)
sketch4.addGeometry(Part.Circle(App.Vector(7.5, 280, 0), App.Vector(0, 0, 1), 2.1), False)
sketch4.addGeometry(Part.Circle(App.Vector(7.5, 263, 0), App.Vector(0, 0, 1), 2.1), False)
sketch4.addGeometry(Part.Circle(App.Vector(7.5, 246.1, 0), App.Vector(0, 0, 1), 2.1), False)
sketch4.addGeometry(Part.Circle(App.Vector(7.5, 229.1, 0), App.Vector(0, 0, 1), 2.1), False)
sketch4.addGeometry(Part.Circle(App.Vector(7.5, 212.1, 0), App.Vector(0, 0, 1), 2.1), False)
sketch4.addGeometry(Part.Circle(App.Vector(7.5, 195.2, 0), App.Vector(0, 0, 1), 2.1), False)
sketch4.addGeometry(Part.Circle(App.Vector(7.5, 178.2, 0), App.Vector(0, 0, 1), 2.1), False)
sketch4.addGeometry(Part.Circle(App.Vector(7.5, 161.2, 0), App.Vector(0, 0, 1), 2.1), False)
sketch4.addGeometry(Part.Circle(App.Vector(7.5, 144.2, 0), App.Vector(0, 0, 1), 2.1), False)
sketch4.addGeometry(Part.Circle(App.Vector(7.5, 127.3, 0), App.Vector(0, 0, 1), 2.1), False)
sketch4.addGeometry(Part.Circle(App.Vector(7.5, 110.3, 0), App.Vector(0, 0, 1), 2.1), False)
sketch4.addGeometry(Part.Circle(App.Vector(7.5, 93.3, 0), App.Vector(0, 0, 1), 2.1), False)
sketch4.addGeometry(Part.Circle(App.Vector(7.5, 76.4, 0), App.Vector(0, 0, 1), 2.1), False)
sketch4.addGeometry(Part.Circle(App.Vector(7.5, 59.4, 0), App.Vector(0, 0, 1), 2.1), False)
sketch4.addGeometry(Part.Circle(App.Vector(7.5, 42.4, 0), App.Vector(0, 0, 1), 2.1), False)
sketch4.addGeometry(Part.Circle(App.Vector(7.5, 25.5, 0), App.Vector(0, 0, 1), 2.1), False)
sketch4.addGeometry(Part.Circle(App.Vector(7.5, 8.5, 0), App.Vector(0, 0, 1), 2.1), False)
sketch4.addGeometry(Part.Circle(App.Vector(7.5, -8.5, 0), App.Vector(0, 0, 1), 2.1), False)
sketch4.addGeometry(Part.Circle(App.Vector(7.5, -25.5, 0), App.Vector(0, 0, 1), 2.1), False)
sketch4.addGeometry(Part.Circle(App.Vector(7.5, -42.4, 0), App.Vector(0, 0, 1), 2.1), False)
sketch4.addGeometry(Part.Circle(App.Vector(7.5, -59.4, 0), App.Vector(0, 0, 1), 2.1), False)
sketch4.addGeometry(Part.Circle(App.Vector(7.5, -76.4, 0), App.Vector(0, 0, 1), 2.1), False)
sketch4.addGeometry(Part.Circle(App.Vector(7.5, -93.3, 0), App.Vector(0, 0, 1), 2.1), False)
sketch4.addGeometry(Part.Circle(App.Vector(7.5, -110.3, 0), App.Vector(0, 0, 1), 2.1), False)
sketch4.addGeometry(Part.Circle(App.Vector(7.5, -127.3, 0), App.Vector(0, 0, 1), 2.1), False)
sketch4.addGeometry(Part.Circle(App.Vector(7.5, -144.2, 0), App.Vector(0, 0, 1), 2.1), False)
sketch4.addGeometry(Part.Circle(App.Vector(7.5, -161.2, 0), App.Vector(0, 0, 1), 2.1), False)
sketch4.addGeometry(Part.Circle(App.Vector(7.5, -178.2, 0), App.Vector(0, 0, 1), 2.1), False)
sketch4.addGeometry(Part.Circle(App.Vector(7.5, -195.2, 0), App.Vector(0, 0, 1), 2.1), False)
sketch4.addGeometry(Part.Circle(App.Vector(7.5, -212.1, 0), App.Vector(0, 0, 1), 2.1), False)
sketch4.addGeometry(Part.Circle(App.Vector(7.5, -229.1, 0), App.Vector(0, 0, 1), 2.1), False)
sketch4.addGeometry(Part.Circle(App.Vector(7.5, -246.1, 0), App.Vector(0, 0, 1), 2.1), False)
sketch4.addGeometry(Part.Circle(App.Vector(7.5, -263, 0), App.Vector(0, 0, 1), 2.1), False)
sketch4.addGeometry(Part.Circle(App.Vector(7.5, -280, 0), App.Vector(0, 0, 1), 2.1), False)
sketch4.addGeometry(Part.Circle(App.Vector(7.5, -297, 0), App.Vector(0, 0, 1), 2.1), False)
sketch4.addGeometry(Part.Circle(App.Vector(7.5, -314, 0), App.Vector(0, 0, 1), 2.1), False)
sketch4.addGeometry(Part.Circle(App.Vector(7.5, -330.9, 0), App.Vector(0, 0, 1), 2.1), False)
sketch4.addGeometry(Part.Circle(App.Vector(7.5, -347.9, 0), App.Vector(0, 0, 1), 2.1), False)
sketch4.addGeometry(Part.Circle(App.Vector(7.5, -364.9, 0), App.Vector(0, 0, 1), 2.1), False)
sketch4.addGeometry(Part.Circle(App.Vector(7.5, -381.8, 0), App.Vector(0, 0, 1), 2.1), False)
sketch4.addConstraint(Sketcher.Constraint("Equal", 0, 1))
sketch4.addConstraint(Sketcher.Constraint("Equal", 1, 2))
sketch4.addConstraint(Sketcher.Constraint("Equal", 2, 3))
sketch4.addConstraint(Sketcher.Constraint("Equal", 3, 4))
sketch4.addConstraint(Sketcher.Constraint("Equal", 4, 5))
sketch4.addConstraint(Sketcher.Constraint("Equal", 5, 6))
sketch4.addConstraint(Sketcher.Constraint("Equal", 6, 7))
sketch4.addConstraint(Sketcher.Constraint("Equal", 7, 8))
sketch4.addConstraint(Sketcher.Constraint("Equal", 8, 9))
sketch4.addConstraint(Sketcher.Constraint("Equal", 9, 10))
sketch4.addConstraint(Sketcher.Constraint("Equal", 10, 11))
sketch4.addConstraint(Sketcher.Constraint("Equal", 11, 12))
sketch4.addConstraint(Sketcher.Constraint("Equal", 12, 13))
sketch4.addConstraint(Sketcher.Constraint("Equal", 13, 14))
sketch4.addConstraint(Sketcher.Constraint("Equal", 14, 15))
sketch4.addConstraint(Sketcher.Constraint("Equal", 15, 16))
sketch4.addConstraint(Sketcher.Constraint("Equal", 16, 17))
sketch4.addConstraint(Sketcher.Constraint("Equal", 17, 18))
sketch4.addConstraint(Sketcher.Constraint("Equal", 18, 19))
sketch4.addConstraint(Sketcher.Constraint("Equal", 19, 20))
sketch4.addConstraint(Sketcher.Constraint("Equal", 20, 21))
sketch4.addConstraint(Sketcher.Constraint("Equal", 21, 22))
sketch4.addConstraint(Sketcher.Constraint("Equal", 22, 23))
sketch4.addConstraint(Sketcher.Constraint("Equal", 23, 24))
sketch4.addConstraint(Sketcher.Constraint("Equal", 24, 25))
sketch4.addConstraint(Sketcher.Constraint("Equal", 25, 26))
sketch4.addConstraint(Sketcher.Constraint("Equal", 26, 27))
sketch4.addConstraint(Sketcher.Constraint("Equal", 27, 28))
sketch4.addConstraint(Sketcher.Constraint("Equal", 28, 29))
sketch4.addConstraint(Sketcher.Constraint("Equal", 29, 30))
sketch4.addConstraint(Sketcher.Constraint("Equal", 30, 31))
sketch4.addConstraint(Sketcher.Constraint("Equal", 31, 32))
sketch4.addConstraint(Sketcher.Constraint("Equal", 32, 33))
sketch4.addConstraint(Sketcher.Constraint("Equal", 33, 34))
sketch4.addConstraint(Sketcher.Constraint("Equal", 34, 35))
sketch4.addConstraint(Sketcher.Constraint("Equal", 35, 36))
sketch4.addConstraint(Sketcher.Constraint("Equal", 36, 37))
sketch4.addConstraint(Sketcher.Constraint("Equal", 37, 38))
sketch4.addConstraint(Sketcher.Constraint("Equal", 38, 39))
sketch4.addConstraint(Sketcher.Constraint("Equal", 39, 40))
sketch4.addConstraint(Sketcher.Constraint("Equal", 40, 41))
sketch4.addConstraint(Sketcher.Constraint("Equal", 41, 42))
sketch4.addConstraint(Sketcher.Constraint("Equal", 42, 43))
sketch4.addConstraint(Sketcher.Constraint("Equal", 43, 44))
sketch4.addConstraint(Sketcher.Constraint("Equal", 44, 45))
sketch4.addConstraint(Sketcher.Constraint("Symmetric", 22, 3, 23, 3, -1))
sketch4.addConstraint(Sketcher.Constraint("Symmetric", 21, 3, 24, 3, -1))
sketch4.addConstraint(Sketcher.Constraint("Symmetric", 20, 3, 25, 3, -1))
sketch4.addConstraint(Sketcher.Constraint("Symmetric", 19, 3, 26, 3, -1))
sketch4.addConstraint(Sketcher.Constraint("Symmetric", 18, 3, 27, 3, -1))
sketch4.addConstraint(Sketcher.Constraint("Symmetric", 17, 3, 28, 3, -1))
sketch4.addConstraint(Sketcher.Constraint("Symmetric", 16, 3, 29, 3, -1))
sketch4.addConstraint(Sketcher.Constraint("Symmetric", 15, 3, 30, 3, -1))
sketch4.addConstraint(Sketcher.Constraint("Symmetric", 14, 3, 31, 3, -1))
sketch4.addConstraint(Sketcher.Constraint("Symmetric", 13, 3, 32, 3, -1))
sketch4.addConstraint(Sketcher.Constraint("Symmetric", 12, 3, 33, 3, -1))
sketch4.addConstraint(Sketcher.Constraint("Symmetric", 11, 3, 34, 3, -1))
sketch4.addConstraint(Sketcher.Constraint("Symmetric", 10, 3, 35, 3, -1))
sketch4.addConstraint(Sketcher.Constraint("Symmetric", 9, 3, 36, 3, -1))
sketch4.addConstraint(Sketcher.Constraint("Symmetric", 8, 3, 37, 3, -1))
sketch4.addConstraint(Sketcher.Constraint("Symmetric", 7, 3, 38, 3, -1))
sketch4.addConstraint(Sketcher.Constraint("Symmetric", 6, 3, 39, 3, -1))
sketch4.addConstraint(Sketcher.Constraint("Symmetric", 5, 3, 40, 3, -1))
sketch4.addConstraint(Sketcher.Constraint("Symmetric", 4, 3, 41, 3, -1))
sketch4.addConstraint(Sketcher.Constraint("Symmetric", 3, 3, 42, 3, -1))
sketch4.addConstraint(Sketcher.Constraint("Symmetric", 2, 3, 43, 3, -1))
sketch4.addConstraint(Sketcher.Constraint("Symmetric", 1, 3, 44, 3, -1))
sketch4.addConstraint(Sketcher.Constraint("Symmetric", 0, 3, 45, 3, -1))
sketch4.addConstraint(Sketcher.Constraint("Vertical", 0, 3, 1, 3))
sketch4.addConstraint(Sketcher.Constraint("Vertical", 1, 3, 2, 3))
sketch4.addConstraint(Sketcher.Constraint("Vertical", 2, 3, 3, 3))
sketch4.addConstraint(Sketcher.Constraint("Vertical", 3, 3, 4, 3))
sketch4.addConstraint(Sketcher.Constraint("Vertical", 4, 3, 5, 3))
sketch4.addConstraint(Sketcher.Constraint("Vertical", 5, 3, 6, 3))
sketch4.addConstraint(Sketcher.Constraint("Vertical", 6, 3, 7, 3))
sketch4.addConstraint(Sketcher.Constraint("Vertical", 7, 3, 8, 3))
sketch4.addConstraint(Sketcher.Constraint("Vertical", 8, 3, 9, 3))
sketch4.addConstraint(Sketcher.Constraint("Vertical", 9, 3, 10, 3))
sketch4.addConstraint(Sketcher.Constraint("Vertical", 10, 3, 11, 3))
sketch4.addConstraint(Sketcher.Constraint("Vertical", 11, 3, 12, 3))
sketch4.addConstraint(Sketcher.Constraint("Vertical", 12, 3, 13, 3))
sketch4.addConstraint(Sketcher.Constraint("Vertical", 13, 3, 14, 3))
sketch4.addConstraint(Sketcher.Constraint("Vertical", 14, 3, 15, 3))
sketch4.addConstraint(Sketcher.Constraint("Vertical", 15, 3, 16, 3))
sketch4.addConstraint(Sketcher.Constraint("Vertical", 16, 3, 17, 3))
sketch4.addConstraint(Sketcher.Constraint("Vertical", 17, 3, 18, 3))
sketch4.addConstraint(Sketcher.Constraint("Vertical", 18, 3, 19, 3))
sketch4.addConstraint(Sketcher.Constraint("Vertical", 19, 3, 20, 3))
sketch4.addConstraint(Sketcher.Constraint("Vertical", 20, 3, 21, 3))
sketch4.addConstraint(Sketcher.Constraint("Vertical", 21, 3, 22, 3))
sketch4.addConstraint(Sketcher.Constraint("Diameter", 0, Q("4.2 mm")))
sketch4.addConstraint(Sketcher.Constraint("DistanceX", -1, 1, 0, 3, Q("7.5 mm")))
sketch4.addConstraint(Sketcher.Constraint("DistanceY", -1, 1, 1, 3, Q("364.867099 mm")))
sketch4.addConstraint(Sketcher.Constraint("DistanceY", -1, 1, 0, 3, Q("381.837662 mm")))
sketch4.addConstraint(Sketcher.Constraint("DistanceY", -1, 1, 4, 3, Q("313.955411 mm")))
sketch4.addConstraint(Sketcher.Constraint("DistanceY", -1, 1, 8, 3, Q("246.07316 mm")))
sketch4.addConstraint(Sketcher.Constraint("DistanceY", -1, 1, 11, 3, Q("195.161472 mm")))
sketch4.addConstraint(Sketcher.Constraint("DistanceY", -1, 1, 12, 3, Q("178.190909 mm")))
sketch4.addConstraint(Sketcher.Constraint("DistanceY", -1, 1, 15, 3, Q("127.279221 mm")))
sketch4.addConstraint(Sketcher.Constraint("DistanceY", -1, 1, 19, 3, Q("59.39697 mm")))
sketch4.addConstraint(Sketcher.Constraint("DistanceY", -1, 1, 22, 3, Q("8.485281 mm")))
sketch4.addConstraint(Sketcher.Constraint("DistanceY", 3, 3, 0, 3, Q("50.911688 mm")))
sketch4.addConstraint(Sketcher.Constraint("DistanceY", 5, 3, 2, 3, Q("50.911688 mm")))
sketch4.addConstraint(Sketcher.Constraint("DistanceY", 5, 3, 1, 3, Q("67.882251 mm")))
sketch4.addConstraint(Sketcher.Constraint("DistanceY", 6, 3, 3, 3, Q("50.911688 mm")))
sketch4.addConstraint(Sketcher.Constraint("DistanceY", 7, 3, 4, 3, Q("50.911688 mm")))
sketch4.addConstraint(Sketcher.Constraint("DistanceY", 9, 3, 6, 3, Q("50.911688 mm")))
sketch4.addConstraint(Sketcher.Constraint("DistanceY", 10, 3, 7, 3, Q("50.911688 mm")))
sketch4.addConstraint(Sketcher.Constraint("DistanceY", 13, 3, 10, 3, Q("50.911688 mm")))
sketch4.addConstraint(Sketcher.Constraint("DistanceY", 14, 3, 11, 3, Q("50.911688 mm")))
sketch4.addConstraint(Sketcher.Constraint("DistanceY", 16, 3, 13, 3, Q("50.911688 mm")))
sketch4.addConstraint(Sketcher.Constraint("DistanceY", 17, 3, 14, 3, Q("50.911688 mm")))
sketch4.addConstraint(Sketcher.Constraint("DistanceY", 18, 3, 15, 3, Q("50.911688 mm")))
sketch4.addConstraint(Sketcher.Constraint("DistanceY", 20, 3, 17, 3, Q("50.911688 mm")))
sketch4.addConstraint(Sketcher.Constraint("DistanceY", 21, 3, 18, 3, Q("50.911688 mm")))
sketch4.setExpression("Constraints[90]", "Params.sketch4_diameter")
pocket3 = body.newObject("PartDesign::Pocket", "Pocket002")
pocket3.Profile = sketch4
pocket3.setExpression("Length", "Params.pocket3_length")

doc.recompute()
